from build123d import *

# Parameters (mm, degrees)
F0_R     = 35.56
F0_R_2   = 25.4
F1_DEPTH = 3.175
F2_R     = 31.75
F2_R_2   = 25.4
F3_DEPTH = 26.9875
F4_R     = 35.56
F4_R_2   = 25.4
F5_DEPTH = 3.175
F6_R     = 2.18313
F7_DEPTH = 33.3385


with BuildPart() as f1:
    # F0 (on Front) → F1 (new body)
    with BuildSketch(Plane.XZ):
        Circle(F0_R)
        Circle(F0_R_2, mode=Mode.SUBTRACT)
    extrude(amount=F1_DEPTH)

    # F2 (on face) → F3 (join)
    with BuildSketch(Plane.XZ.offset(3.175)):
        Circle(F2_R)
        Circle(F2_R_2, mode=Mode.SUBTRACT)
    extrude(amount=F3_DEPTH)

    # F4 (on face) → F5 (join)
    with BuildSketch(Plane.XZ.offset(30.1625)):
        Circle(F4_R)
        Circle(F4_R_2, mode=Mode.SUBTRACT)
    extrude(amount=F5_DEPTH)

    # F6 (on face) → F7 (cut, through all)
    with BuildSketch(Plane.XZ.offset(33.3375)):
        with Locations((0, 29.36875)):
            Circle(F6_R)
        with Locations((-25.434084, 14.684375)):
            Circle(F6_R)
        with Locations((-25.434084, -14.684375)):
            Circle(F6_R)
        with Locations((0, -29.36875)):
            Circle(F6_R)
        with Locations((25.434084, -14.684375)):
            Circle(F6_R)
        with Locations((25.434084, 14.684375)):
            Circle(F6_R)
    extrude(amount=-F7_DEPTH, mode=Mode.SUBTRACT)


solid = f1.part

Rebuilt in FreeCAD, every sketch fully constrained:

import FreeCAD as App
import Part
import Sketcher
Q = App.Units.Quantity

doc = App.newDocument("Part")
body = doc.addObject("PartDesign::Body", "Body")

sketch1 = body.newObject("Sketcher::SketchObject", "Sketch")
sketch1.AttachmentSupport = (doc.getObject("XZ_Plane"), [""])
sketch1.MapMode = "FlatFace"
sketch1.addGeometry([
    Part.Circle(App.Vector(0, 0, 0), App.Vector(0, 0, 1), 36),
    Part.Circle(App.Vector(0, 0, 0), App.Vector(0, 0, 1), 25),
], False)
sketch1.addConstraint([
    Sketcher.Constraint("Coincident", 0, 3, -1, 1),
    Sketcher.Constraint("Coincident", 1, 3, -1, 1),
    Sketcher.Constraint("Diameter", 1, Q("2 in")),
    Sketcher.Constraint("Diameter", 0, Q("2.8 in")),
])
pad1 = body.newObject("PartDesign::Pad", "Pad")
pad1.Profile = sketch1
pad1.Length = Q("0.125 in")

sketch2 = body.newObject("Sketcher::SketchObject", "Sketch001")
sketch2.AttachmentSupport = (doc.getObject("XZ_Plane"), [""])
sketch2.MapMode = "FlatFace"
sketch2.AttachmentOffset = App.Placement(App.Vector(0, 0, 0.125 * 25.4), App.Rotation())
sketch2.addGeometry([
    Part.Circle(App.Vector(0, 0, 0), App.Vector(0, 0, 1), 32),
    Part.Circle(App.Vector(0, 0, 0), App.Vector(0, 0, 1), 25),
], False)
sketch2.addConstraint([
    Sketcher.Constraint("Coincident", 0, 3, -1, 1),
    Sketcher.Constraint("Coincident", 1, 3, -1, 1),
    Sketcher.Constraint("Diameter", 1, Q("2 in")),
    Sketcher.Constraint("Diameter", 0, Q("2.5 in")),
])
pad2 = body.newObject("PartDesign::Pad", "Pad001")
pad2.Profile = sketch2
pad2.Length = Q("1.0625 in")

sketch3 = body.newObject("Sketcher::SketchObject", "Sketch002")
sketch3.AttachmentSupport = (doc.getObject("XZ_Plane"), [""])
sketch3.MapMode = "FlatFace"
sketch3.AttachmentOffset = App.Placement(App.Vector(0, 0, 1.1875 * 25.4), App.Rotation())
sketch3.addGeometry([
    Part.Circle(App.Vector(0, 0, 0), App.Vector(0, 0, 1), 36),
    Part.Circle(App.Vector(0, 0, 0), App.Vector(0, 0, 1), 25),
], False)
sketch3.addConstraint([
    Sketcher.Constraint("Coincident", 0, 3, -1, 1),
    Sketcher.Constraint("Coincident", 1, 3, -1, 1),
    Sketcher.Constraint("Diameter", 1, Q("2 in")),
    Sketcher.Constraint("Diameter", 0, Q("2.8 in")),
])
pad3 = body.newObject("PartDesign::Pad", "Pad002")
pad3.Profile = sketch3
pad3.Length = Q("0.125 in")

sketch4 = body.newObject("Sketcher::SketchObject", "Sketch003")
sketch4.AttachmentSupport = (doc.getObject("XZ_Plane"), [""])
sketch4.MapMode = "FlatFace"
sketch4.AttachmentOffset = App.Placement(App.Vector(0, 0, 1.3125 * 25.4), App.Rotation())
sketch4.addGeometry([
    Part.Circle(App.Vector(0, 29.4, 0), App.Vector(0, 0, 1), 2.2),
    Part.Circle(App.Vector(-25.4, 14.7, 0), App.Vector(0, 0, 1), 2.2),
    Part.Circle(App.Vector(-25.4, -14.7, 0), App.Vector(0, 0, 1), 2.2),
    Part.Circle(App.Vector(0, -29.4, 0), App.Vector(0, 0, 1), 2.2),
    Part.Circle(App.Vector(25.4, -14.7, 0), App.Vector(0, 0, 1), 2.2),
    Part.Circle(App.Vector(25.4, 14.7, 0), App.Vector(0, 0, 1), 2.2),
], False)
sketch4.addConstraint([
    Sketcher.Constraint("Equal", 0, 1),
    Sketcher.Constraint("Equal", 1, 2),
    Sketcher.Constraint("Equal", 2, 3),
    Sketcher.Constraint("Equal", 3, 4),
    Sketcher.Constraint("Equal", 4, 5),
    Sketcher.Constraint("Symmetric", 0, 3, 3, 3, -1, 1),
    Sketcher.Constraint("Symmetric", 1, 3, 4, 3, -1, 1),
    Sketcher.Constraint("Symmetric", 2, 3, 5, 3, -1, 1),
    Sketcher.Constraint("Symmetric", 2, 3, 4, 3, -2),
    Sketcher.Constraint("PointOnObject", 0, 3, -2),
    Sketcher.Constraint("Diameter", 0, Q("0.1719 in")),
    Sketcher.Constraint("DistanceY", -1, 1, 0, 3, Q("1.15625 in")),
    Sketcher.Constraint("DistanceY", -1, 1, 1, 3, Q("0.578125 in")),
    Sketcher.Constraint("DistanceX", 1, 3, -1, 1, 25.434084),
])
pocket1 = body.newObject("PartDesign::Pocket", "Pocket")
pocket1.Profile = sketch4
pocket1.Type = "ThroughAll"

doc.recompute()
